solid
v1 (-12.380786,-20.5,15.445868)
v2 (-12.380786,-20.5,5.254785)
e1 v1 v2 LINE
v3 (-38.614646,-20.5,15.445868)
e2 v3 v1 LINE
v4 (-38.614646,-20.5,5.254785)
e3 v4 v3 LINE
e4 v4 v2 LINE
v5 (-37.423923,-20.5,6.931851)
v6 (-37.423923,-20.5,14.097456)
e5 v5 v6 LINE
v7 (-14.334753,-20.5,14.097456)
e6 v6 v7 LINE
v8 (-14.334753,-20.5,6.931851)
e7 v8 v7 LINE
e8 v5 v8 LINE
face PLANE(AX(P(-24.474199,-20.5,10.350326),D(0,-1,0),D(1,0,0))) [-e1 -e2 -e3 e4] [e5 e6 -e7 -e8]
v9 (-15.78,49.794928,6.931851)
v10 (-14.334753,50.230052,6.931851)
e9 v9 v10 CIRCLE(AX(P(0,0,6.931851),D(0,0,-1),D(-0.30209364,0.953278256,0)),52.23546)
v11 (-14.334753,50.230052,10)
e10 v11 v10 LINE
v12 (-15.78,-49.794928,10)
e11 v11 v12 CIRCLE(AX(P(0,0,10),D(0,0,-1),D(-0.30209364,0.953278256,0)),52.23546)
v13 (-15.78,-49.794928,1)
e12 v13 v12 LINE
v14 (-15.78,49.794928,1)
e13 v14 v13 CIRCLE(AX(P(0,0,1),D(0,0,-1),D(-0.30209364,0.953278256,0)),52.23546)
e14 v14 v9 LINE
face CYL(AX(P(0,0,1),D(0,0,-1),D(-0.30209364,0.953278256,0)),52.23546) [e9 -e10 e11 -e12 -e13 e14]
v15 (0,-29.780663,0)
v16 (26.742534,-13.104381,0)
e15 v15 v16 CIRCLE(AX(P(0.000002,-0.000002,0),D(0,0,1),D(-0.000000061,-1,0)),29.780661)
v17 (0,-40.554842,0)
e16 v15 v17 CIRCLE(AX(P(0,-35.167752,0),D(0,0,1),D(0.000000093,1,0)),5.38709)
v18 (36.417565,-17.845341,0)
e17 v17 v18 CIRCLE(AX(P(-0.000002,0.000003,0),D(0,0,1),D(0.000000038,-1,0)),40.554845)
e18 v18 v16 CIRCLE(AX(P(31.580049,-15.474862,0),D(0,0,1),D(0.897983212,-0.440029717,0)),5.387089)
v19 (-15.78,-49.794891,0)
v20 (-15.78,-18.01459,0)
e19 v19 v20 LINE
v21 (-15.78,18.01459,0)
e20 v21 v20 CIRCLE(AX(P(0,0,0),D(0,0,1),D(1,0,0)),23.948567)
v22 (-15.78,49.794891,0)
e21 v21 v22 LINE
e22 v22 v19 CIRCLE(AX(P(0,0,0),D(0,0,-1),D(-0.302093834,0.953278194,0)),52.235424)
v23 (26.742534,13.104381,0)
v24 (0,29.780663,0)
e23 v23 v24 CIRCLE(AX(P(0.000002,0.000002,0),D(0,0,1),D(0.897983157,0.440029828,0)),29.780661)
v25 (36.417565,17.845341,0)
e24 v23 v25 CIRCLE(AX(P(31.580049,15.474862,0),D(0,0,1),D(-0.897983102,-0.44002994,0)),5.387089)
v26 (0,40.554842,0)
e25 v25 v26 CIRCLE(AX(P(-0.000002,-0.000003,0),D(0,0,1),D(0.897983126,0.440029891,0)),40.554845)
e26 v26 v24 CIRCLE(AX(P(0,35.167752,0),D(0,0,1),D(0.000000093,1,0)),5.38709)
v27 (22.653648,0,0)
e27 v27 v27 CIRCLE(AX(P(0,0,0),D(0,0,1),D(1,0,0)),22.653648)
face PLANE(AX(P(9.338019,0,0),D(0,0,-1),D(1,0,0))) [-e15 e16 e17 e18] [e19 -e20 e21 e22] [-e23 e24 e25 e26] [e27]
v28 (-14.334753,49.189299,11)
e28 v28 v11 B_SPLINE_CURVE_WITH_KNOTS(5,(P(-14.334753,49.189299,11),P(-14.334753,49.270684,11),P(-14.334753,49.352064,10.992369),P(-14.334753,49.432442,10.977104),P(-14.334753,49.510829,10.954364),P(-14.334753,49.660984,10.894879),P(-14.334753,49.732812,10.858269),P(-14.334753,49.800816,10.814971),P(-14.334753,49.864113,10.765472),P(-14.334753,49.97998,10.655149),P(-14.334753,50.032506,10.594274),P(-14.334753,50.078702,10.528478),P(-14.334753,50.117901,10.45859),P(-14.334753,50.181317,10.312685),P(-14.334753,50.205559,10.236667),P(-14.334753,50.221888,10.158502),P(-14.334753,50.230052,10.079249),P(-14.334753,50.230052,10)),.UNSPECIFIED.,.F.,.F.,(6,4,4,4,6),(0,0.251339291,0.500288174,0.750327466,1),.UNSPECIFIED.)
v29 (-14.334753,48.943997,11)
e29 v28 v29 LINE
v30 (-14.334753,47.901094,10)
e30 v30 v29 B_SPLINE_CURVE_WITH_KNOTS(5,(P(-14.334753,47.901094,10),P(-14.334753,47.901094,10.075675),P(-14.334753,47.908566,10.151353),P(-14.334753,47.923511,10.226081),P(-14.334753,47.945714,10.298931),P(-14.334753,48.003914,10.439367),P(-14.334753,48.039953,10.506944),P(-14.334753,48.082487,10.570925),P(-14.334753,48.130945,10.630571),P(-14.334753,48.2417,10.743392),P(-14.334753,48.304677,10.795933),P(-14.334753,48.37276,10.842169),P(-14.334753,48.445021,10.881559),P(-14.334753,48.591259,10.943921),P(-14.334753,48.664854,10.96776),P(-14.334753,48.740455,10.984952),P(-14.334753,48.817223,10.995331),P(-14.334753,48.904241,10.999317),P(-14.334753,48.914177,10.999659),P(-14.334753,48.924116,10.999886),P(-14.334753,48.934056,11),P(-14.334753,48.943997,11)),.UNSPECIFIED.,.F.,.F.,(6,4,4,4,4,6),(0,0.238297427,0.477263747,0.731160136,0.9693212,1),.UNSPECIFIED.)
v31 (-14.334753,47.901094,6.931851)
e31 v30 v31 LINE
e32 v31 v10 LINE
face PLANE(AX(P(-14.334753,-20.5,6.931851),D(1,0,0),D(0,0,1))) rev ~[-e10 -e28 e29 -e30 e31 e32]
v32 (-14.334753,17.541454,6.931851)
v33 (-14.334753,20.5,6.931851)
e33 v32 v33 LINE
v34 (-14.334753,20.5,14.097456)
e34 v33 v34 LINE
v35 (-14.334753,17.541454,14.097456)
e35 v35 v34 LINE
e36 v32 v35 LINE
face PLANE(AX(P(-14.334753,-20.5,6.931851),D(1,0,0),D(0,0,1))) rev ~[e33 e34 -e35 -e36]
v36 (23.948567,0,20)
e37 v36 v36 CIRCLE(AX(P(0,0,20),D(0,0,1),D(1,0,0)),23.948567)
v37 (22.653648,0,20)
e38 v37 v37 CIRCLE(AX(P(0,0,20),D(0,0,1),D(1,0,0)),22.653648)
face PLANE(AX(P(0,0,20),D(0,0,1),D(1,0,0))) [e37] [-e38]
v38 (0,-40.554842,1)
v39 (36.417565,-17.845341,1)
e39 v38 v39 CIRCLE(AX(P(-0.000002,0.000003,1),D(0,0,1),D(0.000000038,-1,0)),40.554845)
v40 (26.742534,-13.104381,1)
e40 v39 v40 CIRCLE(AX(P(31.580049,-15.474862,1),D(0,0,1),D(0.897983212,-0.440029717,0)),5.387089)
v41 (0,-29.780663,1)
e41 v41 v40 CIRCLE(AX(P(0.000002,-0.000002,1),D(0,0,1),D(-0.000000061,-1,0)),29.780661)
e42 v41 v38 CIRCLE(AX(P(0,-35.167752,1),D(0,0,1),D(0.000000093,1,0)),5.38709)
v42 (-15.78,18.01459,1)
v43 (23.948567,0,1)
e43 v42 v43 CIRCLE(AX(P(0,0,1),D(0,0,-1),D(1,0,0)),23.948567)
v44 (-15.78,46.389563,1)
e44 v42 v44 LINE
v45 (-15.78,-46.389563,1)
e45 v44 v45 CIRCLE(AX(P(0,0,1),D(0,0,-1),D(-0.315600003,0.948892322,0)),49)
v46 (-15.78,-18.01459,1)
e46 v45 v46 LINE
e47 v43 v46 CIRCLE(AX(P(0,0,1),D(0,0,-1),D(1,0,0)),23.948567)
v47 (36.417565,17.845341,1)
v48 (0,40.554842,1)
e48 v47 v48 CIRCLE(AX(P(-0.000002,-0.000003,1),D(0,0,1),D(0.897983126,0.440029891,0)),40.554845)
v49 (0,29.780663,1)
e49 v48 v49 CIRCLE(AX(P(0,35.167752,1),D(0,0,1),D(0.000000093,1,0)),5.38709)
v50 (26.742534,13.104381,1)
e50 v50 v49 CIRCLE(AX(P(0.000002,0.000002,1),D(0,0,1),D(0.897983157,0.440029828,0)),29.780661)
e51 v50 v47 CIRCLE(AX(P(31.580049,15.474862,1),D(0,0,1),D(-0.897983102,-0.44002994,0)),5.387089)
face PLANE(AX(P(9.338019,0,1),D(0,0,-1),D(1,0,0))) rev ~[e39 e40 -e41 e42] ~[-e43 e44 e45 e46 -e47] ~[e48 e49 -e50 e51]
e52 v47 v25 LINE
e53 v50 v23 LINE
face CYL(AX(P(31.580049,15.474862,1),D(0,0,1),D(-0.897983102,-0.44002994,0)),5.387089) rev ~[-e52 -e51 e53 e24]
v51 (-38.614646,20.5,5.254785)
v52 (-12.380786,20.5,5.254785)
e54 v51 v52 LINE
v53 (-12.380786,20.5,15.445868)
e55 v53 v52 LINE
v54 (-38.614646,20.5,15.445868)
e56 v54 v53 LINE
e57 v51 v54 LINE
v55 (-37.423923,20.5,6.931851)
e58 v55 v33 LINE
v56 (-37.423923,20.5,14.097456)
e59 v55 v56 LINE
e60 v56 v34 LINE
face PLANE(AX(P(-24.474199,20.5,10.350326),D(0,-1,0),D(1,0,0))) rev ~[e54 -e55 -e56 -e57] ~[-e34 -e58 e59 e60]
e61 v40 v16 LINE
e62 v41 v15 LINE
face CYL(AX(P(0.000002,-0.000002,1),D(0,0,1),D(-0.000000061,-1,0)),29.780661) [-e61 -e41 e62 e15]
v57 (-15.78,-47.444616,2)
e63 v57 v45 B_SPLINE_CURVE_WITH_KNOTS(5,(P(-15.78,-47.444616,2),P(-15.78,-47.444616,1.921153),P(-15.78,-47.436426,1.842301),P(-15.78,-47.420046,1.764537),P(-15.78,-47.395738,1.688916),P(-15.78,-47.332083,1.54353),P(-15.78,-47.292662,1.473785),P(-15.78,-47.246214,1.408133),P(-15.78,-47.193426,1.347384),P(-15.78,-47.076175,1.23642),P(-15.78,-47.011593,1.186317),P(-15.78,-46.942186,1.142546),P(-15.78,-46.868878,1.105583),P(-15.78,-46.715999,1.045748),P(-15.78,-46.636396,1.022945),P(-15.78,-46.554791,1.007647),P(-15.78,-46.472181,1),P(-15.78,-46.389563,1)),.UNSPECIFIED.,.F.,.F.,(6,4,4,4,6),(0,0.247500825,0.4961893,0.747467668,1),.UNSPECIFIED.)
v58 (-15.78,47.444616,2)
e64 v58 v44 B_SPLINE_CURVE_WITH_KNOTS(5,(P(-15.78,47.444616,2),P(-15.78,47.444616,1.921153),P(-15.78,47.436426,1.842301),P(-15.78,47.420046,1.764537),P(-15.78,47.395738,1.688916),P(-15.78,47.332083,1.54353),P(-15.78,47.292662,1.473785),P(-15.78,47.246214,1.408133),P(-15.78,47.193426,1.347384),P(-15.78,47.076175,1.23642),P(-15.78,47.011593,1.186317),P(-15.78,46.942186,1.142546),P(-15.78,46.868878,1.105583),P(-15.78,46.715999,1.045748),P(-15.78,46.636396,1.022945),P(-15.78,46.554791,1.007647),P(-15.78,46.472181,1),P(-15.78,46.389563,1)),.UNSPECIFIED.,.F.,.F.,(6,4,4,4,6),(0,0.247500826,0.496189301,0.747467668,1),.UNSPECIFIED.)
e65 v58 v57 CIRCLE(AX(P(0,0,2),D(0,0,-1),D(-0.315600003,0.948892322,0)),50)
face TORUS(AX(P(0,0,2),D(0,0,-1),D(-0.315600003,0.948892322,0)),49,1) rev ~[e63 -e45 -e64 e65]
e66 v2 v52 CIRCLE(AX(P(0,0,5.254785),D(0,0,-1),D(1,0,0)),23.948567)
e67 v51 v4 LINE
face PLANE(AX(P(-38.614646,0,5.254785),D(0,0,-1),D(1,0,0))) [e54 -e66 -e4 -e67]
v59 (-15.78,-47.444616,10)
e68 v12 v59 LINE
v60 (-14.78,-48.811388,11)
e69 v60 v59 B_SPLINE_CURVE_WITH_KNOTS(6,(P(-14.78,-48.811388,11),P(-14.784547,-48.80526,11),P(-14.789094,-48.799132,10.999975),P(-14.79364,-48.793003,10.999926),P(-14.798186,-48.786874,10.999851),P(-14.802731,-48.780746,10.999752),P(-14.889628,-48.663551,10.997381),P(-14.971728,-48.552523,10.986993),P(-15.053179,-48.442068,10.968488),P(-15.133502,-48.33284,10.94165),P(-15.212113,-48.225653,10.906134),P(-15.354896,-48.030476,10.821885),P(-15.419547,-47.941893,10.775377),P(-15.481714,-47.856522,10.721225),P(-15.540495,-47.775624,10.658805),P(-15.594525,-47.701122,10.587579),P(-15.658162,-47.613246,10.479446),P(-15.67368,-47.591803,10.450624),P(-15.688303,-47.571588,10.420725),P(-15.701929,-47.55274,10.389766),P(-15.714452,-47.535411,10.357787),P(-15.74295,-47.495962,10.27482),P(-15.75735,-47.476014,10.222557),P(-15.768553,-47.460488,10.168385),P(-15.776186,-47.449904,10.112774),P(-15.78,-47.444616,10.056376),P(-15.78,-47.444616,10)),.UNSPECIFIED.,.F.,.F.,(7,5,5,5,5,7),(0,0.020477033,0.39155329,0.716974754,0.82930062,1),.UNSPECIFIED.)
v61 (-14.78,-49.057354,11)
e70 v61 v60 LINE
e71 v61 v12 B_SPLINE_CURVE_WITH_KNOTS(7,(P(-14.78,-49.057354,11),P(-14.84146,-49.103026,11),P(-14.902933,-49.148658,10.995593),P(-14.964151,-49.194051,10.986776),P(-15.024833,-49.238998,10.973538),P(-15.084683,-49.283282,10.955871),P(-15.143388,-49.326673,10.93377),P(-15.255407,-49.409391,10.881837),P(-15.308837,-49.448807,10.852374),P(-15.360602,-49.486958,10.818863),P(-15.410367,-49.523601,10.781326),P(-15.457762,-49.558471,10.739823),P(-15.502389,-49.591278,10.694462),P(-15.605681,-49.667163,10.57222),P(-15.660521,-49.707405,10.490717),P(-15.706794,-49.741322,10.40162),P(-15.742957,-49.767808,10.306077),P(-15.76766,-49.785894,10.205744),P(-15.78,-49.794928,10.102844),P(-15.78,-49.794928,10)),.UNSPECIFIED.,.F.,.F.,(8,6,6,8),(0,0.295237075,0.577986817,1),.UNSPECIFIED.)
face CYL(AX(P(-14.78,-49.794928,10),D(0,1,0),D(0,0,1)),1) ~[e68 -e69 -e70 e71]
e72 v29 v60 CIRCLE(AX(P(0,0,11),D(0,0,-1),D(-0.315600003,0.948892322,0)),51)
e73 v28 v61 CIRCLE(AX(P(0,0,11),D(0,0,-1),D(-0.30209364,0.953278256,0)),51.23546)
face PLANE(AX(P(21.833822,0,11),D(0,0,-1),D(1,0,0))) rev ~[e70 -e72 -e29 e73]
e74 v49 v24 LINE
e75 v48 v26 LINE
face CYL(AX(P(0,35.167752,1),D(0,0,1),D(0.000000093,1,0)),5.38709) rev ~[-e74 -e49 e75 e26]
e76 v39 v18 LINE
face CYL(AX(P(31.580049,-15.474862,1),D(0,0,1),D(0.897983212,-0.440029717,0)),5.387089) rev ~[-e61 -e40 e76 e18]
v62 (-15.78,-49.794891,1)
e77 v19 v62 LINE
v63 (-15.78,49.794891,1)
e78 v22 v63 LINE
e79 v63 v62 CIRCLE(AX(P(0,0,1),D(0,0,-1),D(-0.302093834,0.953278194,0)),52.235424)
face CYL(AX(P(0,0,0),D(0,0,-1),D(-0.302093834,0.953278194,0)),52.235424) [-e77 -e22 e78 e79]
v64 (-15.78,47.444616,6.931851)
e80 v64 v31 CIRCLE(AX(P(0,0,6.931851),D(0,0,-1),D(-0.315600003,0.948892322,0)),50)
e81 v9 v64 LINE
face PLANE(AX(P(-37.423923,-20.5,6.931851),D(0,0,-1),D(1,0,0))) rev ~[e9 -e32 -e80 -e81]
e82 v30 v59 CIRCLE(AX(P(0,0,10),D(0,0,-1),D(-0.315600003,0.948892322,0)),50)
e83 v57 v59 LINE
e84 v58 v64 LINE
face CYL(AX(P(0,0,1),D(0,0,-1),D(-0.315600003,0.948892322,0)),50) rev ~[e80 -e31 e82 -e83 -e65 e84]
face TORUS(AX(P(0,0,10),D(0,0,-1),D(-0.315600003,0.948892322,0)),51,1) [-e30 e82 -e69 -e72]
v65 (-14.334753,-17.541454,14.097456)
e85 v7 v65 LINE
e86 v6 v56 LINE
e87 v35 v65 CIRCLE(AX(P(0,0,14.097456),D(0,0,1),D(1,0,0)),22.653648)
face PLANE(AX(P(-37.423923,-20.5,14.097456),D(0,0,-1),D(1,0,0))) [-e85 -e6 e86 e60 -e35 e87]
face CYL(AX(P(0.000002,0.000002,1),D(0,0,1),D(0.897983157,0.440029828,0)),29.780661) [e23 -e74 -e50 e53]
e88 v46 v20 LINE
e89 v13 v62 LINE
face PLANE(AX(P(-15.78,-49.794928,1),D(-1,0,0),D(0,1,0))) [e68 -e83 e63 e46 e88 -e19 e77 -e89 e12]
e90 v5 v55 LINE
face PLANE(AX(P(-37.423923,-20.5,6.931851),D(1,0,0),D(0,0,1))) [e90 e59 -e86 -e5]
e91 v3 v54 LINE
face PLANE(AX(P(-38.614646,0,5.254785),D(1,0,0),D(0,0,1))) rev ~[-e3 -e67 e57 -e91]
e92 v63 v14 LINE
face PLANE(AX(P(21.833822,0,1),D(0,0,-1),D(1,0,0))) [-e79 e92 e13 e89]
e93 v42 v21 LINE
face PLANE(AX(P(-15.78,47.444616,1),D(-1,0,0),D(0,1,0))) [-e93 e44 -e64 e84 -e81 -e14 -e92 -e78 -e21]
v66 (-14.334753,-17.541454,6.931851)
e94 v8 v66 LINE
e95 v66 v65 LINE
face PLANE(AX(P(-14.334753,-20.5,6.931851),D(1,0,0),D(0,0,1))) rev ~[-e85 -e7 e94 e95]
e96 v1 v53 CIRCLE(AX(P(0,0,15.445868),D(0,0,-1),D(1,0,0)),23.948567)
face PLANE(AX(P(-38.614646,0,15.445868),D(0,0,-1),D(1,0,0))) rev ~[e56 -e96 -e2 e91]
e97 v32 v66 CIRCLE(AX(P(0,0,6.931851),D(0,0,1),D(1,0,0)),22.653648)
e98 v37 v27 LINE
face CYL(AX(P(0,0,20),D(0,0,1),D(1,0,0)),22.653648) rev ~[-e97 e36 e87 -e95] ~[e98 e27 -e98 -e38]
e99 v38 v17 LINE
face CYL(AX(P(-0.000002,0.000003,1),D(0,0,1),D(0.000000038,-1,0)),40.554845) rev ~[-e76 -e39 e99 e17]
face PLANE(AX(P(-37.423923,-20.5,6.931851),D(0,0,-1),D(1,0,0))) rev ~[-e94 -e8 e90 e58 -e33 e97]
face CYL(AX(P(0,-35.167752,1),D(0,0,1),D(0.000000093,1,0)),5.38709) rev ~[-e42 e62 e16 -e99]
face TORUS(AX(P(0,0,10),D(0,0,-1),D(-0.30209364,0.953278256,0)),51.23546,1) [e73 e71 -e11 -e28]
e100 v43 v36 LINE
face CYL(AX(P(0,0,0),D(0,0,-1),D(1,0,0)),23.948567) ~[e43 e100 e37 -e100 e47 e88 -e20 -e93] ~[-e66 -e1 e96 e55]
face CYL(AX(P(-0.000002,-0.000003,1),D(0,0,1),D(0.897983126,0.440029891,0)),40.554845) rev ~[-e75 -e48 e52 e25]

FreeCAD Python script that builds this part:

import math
import FreeCAD as App
import Part
import Sketcher

V = App.Vector
Q = App.Units.Quantity


def edges_at(feature, points):
    """Names of the edges that pass closest to the given points."""
    edges = feature.Shape.Edges
    near = lambda p: min(range(len(edges)), key=lambda i: edges[i].distToShape(Part.Vertex(*p))[0])
    return sorted({f"Edge{near(p) + 1}" for p in points})


def add_polygon(sketch, points):
    """Adds a closed chain of lines whose ends are joined by coincident constraints."""
    first, n = sketch.GeometryCount, len(points)
    for a, b in zip(points, points[1:] + points[:1]):
        sketch.addGeometry(Part.LineSegment(App.Vector(*a, 0), App.Vector(*b, 0)), False)
    for i in range(n):
        sketch.addConstraint(Sketcher.Constraint("Coincident", first + i, 2, first + (i + 1) % n, 1))

doc = App.newDocument("Part")
params = doc.addObject("Spreadsheet::Sheet", "Params")
for row, (alias, value) in enumerate([
    ("pad1_length", "20 mm"),
    ("pad2_length", "41 mm"),
    ("pad3_length", "1 mm"),
    ("sketch4_radius", "50 mm"),
    ("pad4_length", "10 mm"),
    ("fillet_radius", "1 mm"),
    ("fillet2_radius", "1 mm"),
    ("pocket3_length", "5 mm"),
], start=1):
    params.set(f"A{row}", alias)
    params.set(f"B{row}", "=" + value)
    params.setAlias(f"B{row}", alias)

body = doc.addObject("PartDesign::Body", "Body")

# Sketch on XY plane
sketch1 = body.newObject("Sketcher::SketchObject", "Sketch")
sketch1.AttachmentSupport = (doc.getObject("XY_Plane"), [""])
sketch1.MapMode = "FlatFace"
sketch1.addGeometry(Part.Circle(V(0, 0, 0), V(0, 0, 1), 24), False)
sketch1.addConstraint(Sketcher.Constraint("Coincident", 0, 3, -1, 1))
sketch1.addConstraint(Sketcher.Constraint("Diameter", 0, Q("47.897134 mm")))
pad1 = body.newObject("PartDesign::Pad", "Pad")
pad1.Profile = sketch1
pad1.setExpression("Length", "Params.pad1_length")

# Sketch on XZ plane
sketch2 = body.newObject("Sketcher::SketchObject", "Sketch001")
sketch2.AttachmentSupport = (doc.getObject("XZ_Plane"), [""])
sketch2.MapMode = "FlatFace"
add_polygon(sketch2, [(-39, 15), (-39, 5), (-10, 5), (-10, 15)])  # lines 0-3
sketch2.addConstraint(Sketcher.Constraint("Vertical", 0))
sketch2.addConstraint(Sketcher.Constraint("Horizontal", 1))
sketch2.addConstraint(Sketcher.Constraint("Vertical", 2))
sketch2.addConstraint(Sketcher.Constraint("Horizontal", 3))
sketch2.addConstraint(Sketcher.Constraint("DistanceX", 1, 1, 1, 2, Q("28.280895 mm")))
sketch2.addConstraint(Sketcher.Constraint("DistanceY", 0, 2, 0, 1, Q("10.191083 mm")))
sketch2.addConstraint(Sketcher.Constraint("DistanceX", 1, 2, -1, 1, Q("10.333751 mm")))
sketch2.addConstraint(Sketcher.Constraint("DistanceY", -1, 1, 0, 2, Q("5.254785 mm")))
pad2 = body.newObject("PartDesign::Pad", "Pad001")
pad2.Profile = sketch2
pad2.setExpression("Length", "Params.pad2_length")
pad2.Midplane = True

# Sketch on XY plane
sketch3 = body.newObject("Sketcher::SketchObject", "Sketch002")
sketch3.AttachmentSupport = (doc.getObject("XY_Plane"), [""])
sketch3.MapMode = "FlatFace"
sketch3.addGeometry(Part.ArcOfCircle(Part.Circle(V(0, 0, 0), V(0, 0, 1), 52), math.radians(-108), math.radians(108)), False)
sketch3.addGeometry(Part.LineSegment(V(-16, -50, 0), V(-16, 50, 0)), False)
sketch3.addConstraint(Sketcher.Constraint("Coincident", 0, 1, 1, 1))
sketch3.addConstraint(Sketcher.Constraint("Coincident", 1, 2, 0, 2))
sketch3.addConstraint(Sketcher.Constraint("Vertical", 1))
sketch3.addConstraint(Sketcher.Constraint("Coincident", 0, 3, -1, 1))
sketch3.addConstraint(Sketcher.Constraint("DistanceX", 0, 1, -1, 1, Q("15.78 mm")))
sketch3.addConstraint(Sketcher.Constraint("Radius", 0, Q("52.235424 mm")))
pad3 = body.newObject("PartDesign::Pad", "Pad002")
pad3.Profile = sketch3
pad3.setExpression("Length", "Params.pad3_length")

# Sketch on XY plane
sketch4 = body.newObject("Sketcher::SketchObject", "Sketch003")
sketch4.AttachmentSupport = (doc.getObject("XY_Plane"), [""])
sketch4.MapMode = "FlatFace"
sketch4.AttachmentOffset = App.Placement(V(0, 0, 1), App.Rotation())
sketch4.addGeometry(Part.ArcOfCircle(Part.Circle(V(0, 0, 0), V(0, 0, 1), 52.2), math.radians(-108), math.radians(108)), False)
sketch4.addGeometry(Part.LineSegment(V(-15.8, -49.8, 0), V(-15.8, -47.4, 0)), False)
sketch4.addGeometry(Part.ArcOfCircle(Part.Circle(V(0, 0, 0), V(0, 0, 1), 50), math.radians(-108), math.radians(108)), False)
sketch4.addGeometry(Part.LineSegment(V(-15.8, 47.4, 0), V(-15.8, 49.8, 0)), False)
sketch4.addConstraint(Sketcher.Constraint("Coincident", 0, 1, 1, 1))
sketch4.addConstraint(Sketcher.Constraint("Coincident", 1, 2, 2, 1))
sketch4.addConstraint(Sketcher.Constraint("Coincident", 2, 2, 3, 1))
sketch4.addConstraint(Sketcher.Constraint("Coincident", 3, 2, 0, 2))
sketch4.addConstraint(Sketcher.Constraint("Vertical", 1))
sketch4.addConstraint(Sketcher.Constraint("Vertical", 3))
sketch4.addConstraint(Sketcher.Constraint("Coincident", 0, 3, -1, 1))
sketch4.addConstraint(Sketcher.Constraint("Coincident", 2, 3, -1, 1))
sketch4.addConstraint(Sketcher.Constraint("Vertical", 1, 2, 2, 2))
sketch4.addConstraint(Sketcher.Constraint("Radius", 2, Q("50 mm")))
sketch4.addConstraint(Sketcher.Constraint("DistanceX", 0, 1, -1, 1, Q("15.78 mm")))
sketch4.addConstraint(Sketcher.Constraint("Radius", 0, Q("52.23546 mm")))
sketch4.setExpression("Constraints[9]", "Params.sketch4_radius")
pad4 = body.newObject("PartDesign::Pad", "Pad003")
pad4.Profile = sketch4
pad4.setExpression("Length", "Params.pad4_length")
doc.recompute()

fillet = body.newObject("PartDesign::Fillet", "Fillet")
fillet.Base = (pad4, edges_at(pad4, [(50, 0, 1)]))
fillet.setExpression("Radius", "Params.fillet_radius")
doc.recompute()

fillet2 = body.newObject("PartDesign::Fillet", "Fillet001")
fillet2.Base = (fillet, edges_at(fillet, [
    (52.235, 0, 11),
    (-15.78, -48.62, 11),
    (50, 0, 11),
    (-15.78, 48.62, 11),
]))
fillet2.setExpression("Radius", "Params.fillet2_radius")

# Sketch on XZ plane
sketch5 = body.newObject("Sketcher::SketchObject", "Sketch004")
sketch5.AttachmentSupport = (doc.getObject("XZ_Plane"), [""])
sketch5.MapMode = "FlatFace"
sketch5.AttachmentOffset = App.Placement(V(0, 0, 20.5), App.Rotation())
add_polygon(sketch5, [(-37, 14), (-37, 7), (-14, 7), (-14, 14)])  # lines 0-3
sketch5.addConstraint(Sketcher.Constraint("Vertical", 0))
sketch5.addConstraint(Sketcher.Constraint("Horizontal", 1))
sketch5.addConstraint(Sketcher.Constraint("Vertical", 2))
sketch5.addConstraint(Sketcher.Constraint("Horizontal", 3))
sketch5.addConstraint(Sketcher.Constraint("DistanceX", 1, 1, 1, 2, Q("23.089169 mm")))
sketch5.addConstraint(Sketcher.Constraint("DistanceY", 0, 2, 0, 1, Q("7.165605 mm")))
sketch5.addConstraint(Sketcher.Constraint("DistanceY", -1, 1, 0, 2, Q("6.931851 mm")))
sketch5.addConstraint(Sketcher.Constraint("DistanceX", 0, 2, -1, 1, Q("37.423923 mm")))
pocket1 = body.newObject("PartDesign::Pocket", "Pocket")
pocket1.Profile = sketch5
pocket1.Type = "ThroughAll"

# Sketch on XY plane
sketch6 = body.newObject("Sketcher::SketchObject", "Sketch005")
sketch6.AttachmentSupport = (doc.getObject("XY_Plane"), [""])
sketch6.MapMode = "FlatFace"
sketch6.AttachmentOffset = App.Placement(V(0, 0, 20), App.Rotation())
sketch6.addGeometry(Part.Circle(V(0, 0, 0), V(0, 0, 1), 23), False)
sketch6.addConstraint(Sketcher.Constraint("Coincident", 0, 3, -1, 1))
sketch6.addConstraint(Sketcher.Constraint("Diameter", 0, Q("45.307296 mm")))
pocket2 = body.newObject("PartDesign::Pocket", "Pocket001")
pocket2.Profile = sketch6
pocket2.Type = "ThroughAll"

# Sketch on XY plane
sketch7 = body.newObject("Sketcher::SketchObject", "Sketch006")
sketch7.AttachmentSupport = (doc.getObject("XY_Plane"), [""])
sketch7.MapMode = "FlatFace"
sketch7.AttachmentOffset = App.Placement(V(0, 0, 1), App.Rotation())
sketch7.addGeometry(Part.ArcOfCircle(Part.Circle(V(0, 35, 0), V(0, 0, 1), 5), math.radians(90), math.radians(270)), False)
sketch7.addGeometry(Part.ArcOfCircle(Part.Circle(V(0, 0, 0), V(0, 0, 1), 30), math.radians(26), math.radians(90)), False)
sketch7.addGeometry(Part.ArcOfCircle(Part.Circle(V(32, 15, 0), V(0, 0, 1), 5), math.radians(-154), math.radians(26)), False)
sketch7.addGeometry(Part.ArcOfCircle(Part.Circle(V(0, 0, 0), V(0, 0, 1), 41), math.radians(26), math.radians(90)), False)
sketch7.addGeometry(Part.ArcOfCircle(Part.Circle(V(0, -35, 0), V(0, 0, 1), 5), math.radians(90), math.radians(270)), False)
sketch7.addGeometry(Part.ArcOfCircle(Part.Circle(V(0, 0, 0), V(0, 0, 1), 41), math.radians(-90), math.radians(-26)), False)
sketch7.addGeometry(Part.ArcOfCircle(Part.Circle(V(32, -15, 0), V(0, 0, 1), 5), math.radians(-26), math.radians(154)), False)
sketch7.addGeometry(Part.ArcOfCircle(Part.Circle(V(0, 0, 0), V(0, 0, 1), 30), math.radians(-90), math.radians(-26)), False)
sketch7.addConstraint(Sketcher.Constraint("Tangent", 0, 2, 1, 2))
sketch7.addConstraint(Sketcher.Constraint("Tangent", 1, 1, 2, 1))
sketch7.addConstraint(Sketcher.Constraint("Tangent", 2, 2, 3, 1))
sketch7.addConstraint(Sketcher.Constraint("Tangent", 3, 2, 0, 1))
sketch7.addConstraint(Sketcher.Constraint("Tangent", 4, 2, 5, 1))
sketch7.addConstraint(Sketcher.Constraint("Tangent", 5, 2, 6, 1))
sketch7.addConstraint(Sketcher.Constraint("Tangent", 6, 2, 7, 2))
sketch7.addConstraint(Sketcher.Constraint("Tangent", 7, 1, 4, 1))
sketch7.addConstraint(Sketcher.Constraint("Coincident", 1, 3, -1, 1))
sketch7.addConstraint(Sketcher.Constraint("Coincident", 3, 3, -1, 1))
sketch7.addConstraint(Sketcher.Constraint("Coincident", 5, 3, -1, 1))
sketch7.addConstraint(Sketcher.Constraint("Coincident", 7, 3, -1, 1))
sketch7.addConstraint(Sketcher.Constraint("Equal", 2, 4))
sketch7.addConstraint(Sketcher.Constraint("Equal", 3, 5))
sketch7.addConstraint(Sketcher.Constraint("PointOnObject", 0, 3, -2))
sketch7.addConstraint(Sketcher.Constraint("PointOnObject", 4, 3, -2))
sketch7.addConstraint(Sketcher.Constraint("Vertical", 2, 3, 6, 3))
sketch7.addConstraint(Sketcher.Constraint("Radius", 0, Q("5.38709 mm")))
sketch7.addConstraint(Sketcher.Constraint("Radius", 1, Q("29.780661 mm")))
sketch7.addConstraint(Sketcher.Constraint("DistanceX", -1, 1, 2, 3, Q("31.580049 mm")))
pocket3 = body.newObject("PartDesign::Pocket", "Pocket002")
pocket3.Profile = sketch7
pocket3.setExpression("Length", "Params.pocket3_length")

doc.recompute()
